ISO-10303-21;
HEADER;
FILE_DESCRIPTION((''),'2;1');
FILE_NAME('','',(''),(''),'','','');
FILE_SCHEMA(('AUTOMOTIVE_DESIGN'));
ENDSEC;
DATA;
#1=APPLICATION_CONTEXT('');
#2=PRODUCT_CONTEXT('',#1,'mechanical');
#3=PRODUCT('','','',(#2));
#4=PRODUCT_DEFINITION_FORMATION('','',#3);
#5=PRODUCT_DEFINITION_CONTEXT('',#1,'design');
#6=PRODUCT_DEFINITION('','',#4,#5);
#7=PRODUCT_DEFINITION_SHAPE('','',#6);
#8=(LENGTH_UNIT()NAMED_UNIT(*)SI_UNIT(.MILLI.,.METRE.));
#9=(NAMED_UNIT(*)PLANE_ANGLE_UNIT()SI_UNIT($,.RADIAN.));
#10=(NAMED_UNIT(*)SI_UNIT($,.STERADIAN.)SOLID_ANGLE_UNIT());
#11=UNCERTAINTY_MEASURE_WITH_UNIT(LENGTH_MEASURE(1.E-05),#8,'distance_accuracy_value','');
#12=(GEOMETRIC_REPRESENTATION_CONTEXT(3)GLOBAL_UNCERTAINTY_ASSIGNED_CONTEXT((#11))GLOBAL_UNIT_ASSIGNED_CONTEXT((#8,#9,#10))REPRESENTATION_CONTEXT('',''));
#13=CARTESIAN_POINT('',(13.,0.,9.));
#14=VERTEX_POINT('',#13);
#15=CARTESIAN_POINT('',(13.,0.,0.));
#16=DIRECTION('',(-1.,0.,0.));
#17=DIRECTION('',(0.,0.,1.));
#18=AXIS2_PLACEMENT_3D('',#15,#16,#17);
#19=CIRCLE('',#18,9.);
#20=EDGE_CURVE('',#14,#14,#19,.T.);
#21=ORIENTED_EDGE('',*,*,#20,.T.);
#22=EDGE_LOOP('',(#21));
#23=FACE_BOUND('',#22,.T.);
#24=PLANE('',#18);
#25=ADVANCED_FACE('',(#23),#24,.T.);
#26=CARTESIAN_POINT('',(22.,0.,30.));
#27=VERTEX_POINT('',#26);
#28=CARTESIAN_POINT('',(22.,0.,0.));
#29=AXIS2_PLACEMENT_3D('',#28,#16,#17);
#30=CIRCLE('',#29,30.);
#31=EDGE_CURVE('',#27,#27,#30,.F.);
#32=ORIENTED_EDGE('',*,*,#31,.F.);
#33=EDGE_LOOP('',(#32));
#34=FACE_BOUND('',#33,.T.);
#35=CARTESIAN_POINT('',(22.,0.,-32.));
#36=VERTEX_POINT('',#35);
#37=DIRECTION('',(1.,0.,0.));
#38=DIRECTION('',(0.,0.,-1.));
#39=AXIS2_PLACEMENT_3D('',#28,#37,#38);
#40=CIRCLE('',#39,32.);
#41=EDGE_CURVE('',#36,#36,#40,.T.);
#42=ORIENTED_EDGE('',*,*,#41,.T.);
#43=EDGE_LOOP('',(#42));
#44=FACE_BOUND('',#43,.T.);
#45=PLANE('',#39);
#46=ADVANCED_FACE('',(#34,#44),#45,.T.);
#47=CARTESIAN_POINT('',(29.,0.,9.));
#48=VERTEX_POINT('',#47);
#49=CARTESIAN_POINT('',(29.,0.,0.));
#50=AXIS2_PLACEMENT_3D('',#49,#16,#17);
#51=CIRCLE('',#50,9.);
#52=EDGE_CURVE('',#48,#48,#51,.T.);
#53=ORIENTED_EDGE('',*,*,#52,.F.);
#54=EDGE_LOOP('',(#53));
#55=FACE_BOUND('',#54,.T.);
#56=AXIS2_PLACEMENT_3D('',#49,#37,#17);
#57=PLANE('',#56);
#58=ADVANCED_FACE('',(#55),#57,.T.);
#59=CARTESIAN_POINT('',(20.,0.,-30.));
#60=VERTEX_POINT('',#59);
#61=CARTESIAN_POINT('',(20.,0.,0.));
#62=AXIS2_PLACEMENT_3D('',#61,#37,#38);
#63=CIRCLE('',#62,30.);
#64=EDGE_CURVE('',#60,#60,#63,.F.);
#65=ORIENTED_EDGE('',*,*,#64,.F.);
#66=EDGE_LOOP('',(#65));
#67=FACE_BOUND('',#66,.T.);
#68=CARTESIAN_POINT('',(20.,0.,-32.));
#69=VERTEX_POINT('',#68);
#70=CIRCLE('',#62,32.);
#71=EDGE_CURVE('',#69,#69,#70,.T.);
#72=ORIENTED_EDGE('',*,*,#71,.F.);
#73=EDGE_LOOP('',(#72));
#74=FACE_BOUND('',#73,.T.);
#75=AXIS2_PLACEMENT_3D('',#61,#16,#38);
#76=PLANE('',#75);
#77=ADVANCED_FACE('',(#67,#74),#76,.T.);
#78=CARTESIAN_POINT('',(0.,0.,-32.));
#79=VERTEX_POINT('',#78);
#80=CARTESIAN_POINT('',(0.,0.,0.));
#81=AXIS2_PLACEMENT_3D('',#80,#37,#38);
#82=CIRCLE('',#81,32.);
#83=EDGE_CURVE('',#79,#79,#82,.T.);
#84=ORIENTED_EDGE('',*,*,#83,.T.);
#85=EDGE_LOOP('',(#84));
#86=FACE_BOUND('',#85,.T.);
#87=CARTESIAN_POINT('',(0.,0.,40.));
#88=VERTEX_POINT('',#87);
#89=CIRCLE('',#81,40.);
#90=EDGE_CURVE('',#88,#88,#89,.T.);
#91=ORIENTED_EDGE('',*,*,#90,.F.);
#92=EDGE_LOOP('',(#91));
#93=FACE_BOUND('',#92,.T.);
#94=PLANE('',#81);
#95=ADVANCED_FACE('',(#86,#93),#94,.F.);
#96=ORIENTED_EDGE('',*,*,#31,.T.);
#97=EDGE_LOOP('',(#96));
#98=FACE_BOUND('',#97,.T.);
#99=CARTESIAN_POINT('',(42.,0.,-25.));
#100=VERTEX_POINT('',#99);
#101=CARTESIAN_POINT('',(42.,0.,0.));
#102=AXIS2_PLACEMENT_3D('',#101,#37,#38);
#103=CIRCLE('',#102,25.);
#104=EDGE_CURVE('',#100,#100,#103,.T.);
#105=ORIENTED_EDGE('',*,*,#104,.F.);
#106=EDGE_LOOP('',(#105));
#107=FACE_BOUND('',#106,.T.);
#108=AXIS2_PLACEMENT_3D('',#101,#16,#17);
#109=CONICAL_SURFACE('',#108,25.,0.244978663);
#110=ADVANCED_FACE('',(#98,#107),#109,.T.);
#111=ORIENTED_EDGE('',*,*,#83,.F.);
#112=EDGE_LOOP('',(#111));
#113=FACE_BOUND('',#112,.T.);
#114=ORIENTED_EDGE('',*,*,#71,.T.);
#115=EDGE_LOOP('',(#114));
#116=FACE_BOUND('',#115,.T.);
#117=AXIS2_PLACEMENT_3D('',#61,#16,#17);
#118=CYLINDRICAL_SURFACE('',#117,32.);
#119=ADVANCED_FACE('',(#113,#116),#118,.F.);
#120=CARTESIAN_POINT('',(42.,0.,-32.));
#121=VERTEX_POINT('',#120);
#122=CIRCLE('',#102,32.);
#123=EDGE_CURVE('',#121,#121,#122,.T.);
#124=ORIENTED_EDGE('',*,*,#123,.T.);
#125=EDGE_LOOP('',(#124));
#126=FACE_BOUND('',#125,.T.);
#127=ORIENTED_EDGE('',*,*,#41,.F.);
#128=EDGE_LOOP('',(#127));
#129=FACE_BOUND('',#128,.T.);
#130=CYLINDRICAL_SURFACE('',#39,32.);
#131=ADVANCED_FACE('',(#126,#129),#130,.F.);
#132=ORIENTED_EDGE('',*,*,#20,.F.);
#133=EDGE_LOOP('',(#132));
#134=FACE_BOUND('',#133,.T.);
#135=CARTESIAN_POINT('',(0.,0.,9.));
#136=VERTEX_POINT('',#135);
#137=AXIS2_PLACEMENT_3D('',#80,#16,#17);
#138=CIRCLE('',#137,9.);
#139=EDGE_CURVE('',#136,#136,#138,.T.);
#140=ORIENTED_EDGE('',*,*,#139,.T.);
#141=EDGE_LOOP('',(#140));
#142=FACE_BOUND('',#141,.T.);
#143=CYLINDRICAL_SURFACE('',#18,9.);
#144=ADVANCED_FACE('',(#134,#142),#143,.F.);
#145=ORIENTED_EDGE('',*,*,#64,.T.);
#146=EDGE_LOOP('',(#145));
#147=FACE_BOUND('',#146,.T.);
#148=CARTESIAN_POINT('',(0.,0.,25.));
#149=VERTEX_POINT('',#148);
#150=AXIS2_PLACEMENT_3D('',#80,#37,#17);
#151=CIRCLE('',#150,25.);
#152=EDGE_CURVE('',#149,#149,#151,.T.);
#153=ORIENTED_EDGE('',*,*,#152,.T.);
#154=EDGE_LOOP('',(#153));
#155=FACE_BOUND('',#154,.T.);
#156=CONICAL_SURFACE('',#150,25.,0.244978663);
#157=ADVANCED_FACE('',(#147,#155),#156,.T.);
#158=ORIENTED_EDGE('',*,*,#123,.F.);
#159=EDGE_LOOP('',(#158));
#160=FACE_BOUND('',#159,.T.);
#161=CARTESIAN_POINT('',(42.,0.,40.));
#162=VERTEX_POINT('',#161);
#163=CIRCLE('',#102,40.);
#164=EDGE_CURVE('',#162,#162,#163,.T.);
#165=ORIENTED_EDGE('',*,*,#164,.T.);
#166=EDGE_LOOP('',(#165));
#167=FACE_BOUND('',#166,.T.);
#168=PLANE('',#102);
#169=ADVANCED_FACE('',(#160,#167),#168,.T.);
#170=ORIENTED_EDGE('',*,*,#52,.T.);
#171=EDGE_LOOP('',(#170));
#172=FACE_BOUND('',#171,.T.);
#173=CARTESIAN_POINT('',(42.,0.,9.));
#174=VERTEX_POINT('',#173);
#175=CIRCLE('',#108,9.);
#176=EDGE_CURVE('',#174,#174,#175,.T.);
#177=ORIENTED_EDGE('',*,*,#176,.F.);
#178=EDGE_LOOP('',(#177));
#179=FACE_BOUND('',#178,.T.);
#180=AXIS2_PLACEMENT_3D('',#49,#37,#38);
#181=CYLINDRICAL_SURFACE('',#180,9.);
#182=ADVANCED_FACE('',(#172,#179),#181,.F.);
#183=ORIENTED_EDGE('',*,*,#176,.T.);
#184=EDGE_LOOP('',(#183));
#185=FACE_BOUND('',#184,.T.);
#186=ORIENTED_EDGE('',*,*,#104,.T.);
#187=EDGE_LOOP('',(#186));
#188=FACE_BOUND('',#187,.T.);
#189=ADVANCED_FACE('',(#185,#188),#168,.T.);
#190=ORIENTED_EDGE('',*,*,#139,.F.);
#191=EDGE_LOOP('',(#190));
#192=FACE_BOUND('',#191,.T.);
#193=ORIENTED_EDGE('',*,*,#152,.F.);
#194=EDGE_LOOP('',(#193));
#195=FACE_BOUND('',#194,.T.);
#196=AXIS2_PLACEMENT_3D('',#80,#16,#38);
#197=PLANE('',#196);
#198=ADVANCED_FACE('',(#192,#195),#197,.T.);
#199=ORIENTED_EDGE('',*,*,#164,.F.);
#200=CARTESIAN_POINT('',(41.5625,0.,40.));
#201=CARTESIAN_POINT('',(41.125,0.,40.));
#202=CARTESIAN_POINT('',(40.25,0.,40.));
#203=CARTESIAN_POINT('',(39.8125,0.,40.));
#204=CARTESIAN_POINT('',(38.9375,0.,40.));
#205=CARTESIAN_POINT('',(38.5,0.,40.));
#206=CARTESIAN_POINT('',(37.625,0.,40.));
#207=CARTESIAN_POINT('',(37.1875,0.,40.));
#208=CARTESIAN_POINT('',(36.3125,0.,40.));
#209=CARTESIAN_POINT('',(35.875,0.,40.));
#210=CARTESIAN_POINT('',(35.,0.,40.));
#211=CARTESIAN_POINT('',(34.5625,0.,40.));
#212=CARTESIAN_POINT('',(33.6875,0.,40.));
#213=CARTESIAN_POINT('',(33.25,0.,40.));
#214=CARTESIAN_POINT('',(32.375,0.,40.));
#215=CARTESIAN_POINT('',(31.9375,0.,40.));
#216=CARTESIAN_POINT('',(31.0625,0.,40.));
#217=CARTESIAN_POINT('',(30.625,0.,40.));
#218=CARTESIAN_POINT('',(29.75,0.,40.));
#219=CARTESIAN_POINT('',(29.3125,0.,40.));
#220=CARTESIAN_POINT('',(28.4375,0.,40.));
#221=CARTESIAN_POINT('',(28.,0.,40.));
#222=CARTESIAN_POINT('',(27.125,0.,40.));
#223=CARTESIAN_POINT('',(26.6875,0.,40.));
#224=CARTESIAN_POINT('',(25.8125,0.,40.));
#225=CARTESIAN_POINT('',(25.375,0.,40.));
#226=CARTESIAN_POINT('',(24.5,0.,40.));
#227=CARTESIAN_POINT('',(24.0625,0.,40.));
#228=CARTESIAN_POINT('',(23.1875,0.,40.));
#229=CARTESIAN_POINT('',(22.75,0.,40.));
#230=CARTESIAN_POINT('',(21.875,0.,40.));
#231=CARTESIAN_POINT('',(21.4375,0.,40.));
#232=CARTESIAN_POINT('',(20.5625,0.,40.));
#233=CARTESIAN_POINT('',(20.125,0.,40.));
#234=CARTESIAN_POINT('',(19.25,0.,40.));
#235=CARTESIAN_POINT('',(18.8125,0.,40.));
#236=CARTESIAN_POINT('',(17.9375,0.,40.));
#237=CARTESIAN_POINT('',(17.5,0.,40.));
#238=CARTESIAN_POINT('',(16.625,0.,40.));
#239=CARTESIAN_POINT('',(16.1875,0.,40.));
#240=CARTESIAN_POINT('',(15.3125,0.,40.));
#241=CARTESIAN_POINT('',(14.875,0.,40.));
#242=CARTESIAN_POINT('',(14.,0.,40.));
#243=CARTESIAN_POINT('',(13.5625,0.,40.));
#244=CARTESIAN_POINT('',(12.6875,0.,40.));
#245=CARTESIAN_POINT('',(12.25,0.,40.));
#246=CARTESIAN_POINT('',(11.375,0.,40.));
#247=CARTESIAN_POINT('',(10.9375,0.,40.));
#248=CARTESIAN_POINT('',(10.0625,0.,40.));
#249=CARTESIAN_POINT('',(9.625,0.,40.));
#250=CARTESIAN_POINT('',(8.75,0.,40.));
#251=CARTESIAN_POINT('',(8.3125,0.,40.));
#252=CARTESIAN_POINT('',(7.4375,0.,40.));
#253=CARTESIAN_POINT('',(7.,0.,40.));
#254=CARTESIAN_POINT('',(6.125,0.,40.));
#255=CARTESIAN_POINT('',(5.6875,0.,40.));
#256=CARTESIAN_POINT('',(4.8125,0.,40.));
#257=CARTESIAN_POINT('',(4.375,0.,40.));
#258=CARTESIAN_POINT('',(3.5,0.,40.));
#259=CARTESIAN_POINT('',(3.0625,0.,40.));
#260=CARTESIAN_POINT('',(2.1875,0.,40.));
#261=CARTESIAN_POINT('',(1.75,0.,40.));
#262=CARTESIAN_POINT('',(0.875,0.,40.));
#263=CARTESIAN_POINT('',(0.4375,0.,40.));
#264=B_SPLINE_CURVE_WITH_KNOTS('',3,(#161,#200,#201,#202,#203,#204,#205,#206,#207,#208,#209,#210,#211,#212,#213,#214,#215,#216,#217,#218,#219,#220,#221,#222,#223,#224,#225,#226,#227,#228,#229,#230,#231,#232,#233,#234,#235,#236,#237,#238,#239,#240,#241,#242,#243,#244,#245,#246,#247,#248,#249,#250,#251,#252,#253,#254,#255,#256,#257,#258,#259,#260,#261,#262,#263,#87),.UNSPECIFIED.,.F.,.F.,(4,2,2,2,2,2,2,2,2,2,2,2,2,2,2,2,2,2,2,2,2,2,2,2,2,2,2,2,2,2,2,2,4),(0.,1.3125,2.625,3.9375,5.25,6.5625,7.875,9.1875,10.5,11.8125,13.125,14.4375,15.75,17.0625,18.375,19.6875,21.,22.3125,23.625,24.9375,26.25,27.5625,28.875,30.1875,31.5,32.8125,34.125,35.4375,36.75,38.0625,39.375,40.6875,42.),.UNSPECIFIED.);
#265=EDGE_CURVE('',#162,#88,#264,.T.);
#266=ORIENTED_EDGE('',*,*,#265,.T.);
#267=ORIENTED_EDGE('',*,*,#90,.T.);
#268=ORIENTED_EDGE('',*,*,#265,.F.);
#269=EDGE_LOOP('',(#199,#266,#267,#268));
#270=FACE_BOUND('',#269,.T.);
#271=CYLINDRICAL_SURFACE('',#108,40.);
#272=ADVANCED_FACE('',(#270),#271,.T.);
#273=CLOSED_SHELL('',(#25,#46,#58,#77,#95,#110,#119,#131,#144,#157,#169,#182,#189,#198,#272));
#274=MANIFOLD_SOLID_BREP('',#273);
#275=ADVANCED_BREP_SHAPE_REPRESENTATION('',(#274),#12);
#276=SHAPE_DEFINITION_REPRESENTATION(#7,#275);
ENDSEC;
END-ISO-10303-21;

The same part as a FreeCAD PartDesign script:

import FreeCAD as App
import Part
import Sketcher
Q = App.Units.Quantity

doc = App.newDocument("Part")
body = doc.addObject("PartDesign::Body", "Body")

# Sketch on YZ plane
sketch1 = body.newObject("Sketcher::SketchObject", "Sketch")
sketch1.AttachmentSupport = (doc.getObject("YZ_Plane"), [""])
sketch1.MapMode = "FlatFace"
sketch1.addGeometry(Part.Circle(App.Vector(0, 0, 0), App.Vector(0, 0, 1), 40), False)
sketch1.addConstraint(Sketcher.Constraint("Coincident", 0, 3, -1, 1))
sketch1.addConstraint(Sketcher.Constraint("Diameter", 0, Q("80 mm")))
pad1 = body.newObject("PartDesign::Pad", "Pad")
pad1.Profile = sketch1
pad1.Length = 42

# Sketch on YZ plane
sketch2 = body.newObject("Sketcher::SketchObject", "Sketch001")
sketch2.AttachmentSupport = (doc.getObject("YZ_Plane"), [""])
sketch2.MapMode = "FlatFace"
sketch2.AttachmentOffset = App.Placement(App.Vector(0, 0, 42), App.Rotation())
sketch2.addGeometry(Part.Circle(App.Vector(0, 0, 0), App.Vector(0, 0, 1), 32), False)
sketch2.addConstraint(Sketcher.Constraint("Coincident", 0, 3, -1, 1))
sketch2.addConstraint(Sketcher.Constraint("Diameter", 0, Q("64 mm")))
pocket1 = body.newObject("PartDesign::Pocket", "Pocket")
pocket1.Profile = sketch2
pocket1.Length = 20

# Sketch on YZ plane
sketch3 = body.newObject("Sketcher::SketchObject", "Sketch002")
sketch3.AttachmentSupport = (doc.getObject("YZ_Plane"), [""])
sketch3.MapMode = "FlatFace"
sketch3.AttachmentOffset = App.Placement(App.Vector(0, 0, 22), App.Rotation())
sketch3.addGeometry(Part.Circle(App.Vector(0, 0, 0), App.Vector(0, 0, 1), 30), False)
sketch3.addConstraint(Sketcher.Constraint("Coincident", 0, 3, -1, 1))
sketch3.addConstraint(Sketcher.Constraint("Diameter", 0, Q("60 mm")))

# Sketch on YZ plane
sketch4 = body.newObject("Sketcher::SketchObject", "Sketch003")
sketch4.AttachmentSupport = (doc.getObject("YZ_Plane"), [""])
sketch4.MapMode = "FlatFace"
sketch4.AttachmentOffset = App.Placement(App.Vector(0, 0, 42), App.Rotation())
sketch4.addGeometry(Part.Circle(App.Vector(0, 0, 0), App.Vector(0, 0, 1), 25), False)
sketch4.addConstraint(Sketcher.Constraint("Coincident", 0, 3, -1, 1))
sketch4.addConstraint(Sketcher.Constraint("Diameter", 0, Q("50 mm")))

additiveloft = body.newObject("PartDesign::AdditiveLoft", "AdditiveLoft")
additiveloft.Profile = sketch3
additiveloft.Sections = [sketch4]
doc.recompute()

datumplane = body.newObject("PartDesign::Plane", "DatumPlane")
datumplane.AttachmentSupport = (doc.getObject("YZ_Plane"), [""])
datumplane.MapMode = "FlatFace"
datumplane.AttachmentOffset = App.Placement(App.Vector(0, 0, 21), App.Rotation())
mirrored = body.newObject("PartDesign::Mirrored", "Mirrored")
mirrored.Originals = [pocket1, additiveloft]
mirrored.MirrorPlane = (datumplane, [""])
body.Tip = mirrored

# Sketch on YZ plane
sketch5 = body.newObject("Sketcher::SketchObject", "Sketch004")
sketch5.AttachmentSupport = (doc.getObject("YZ_Plane"), [""])
sketch5.MapMode = "FlatFace"
sketch5.addGeometry(Part.Circle(App.Vector(0, 0, 0), App.Vector(0, 0, 1), 9), False)
sketch5.addConstraint(Sketcher.Constraint("Coincident", 0, 3, -1, 1))
sketch5.addConstraint(Sketcher.Constraint("Diameter", 0, Q("18 mm")))
pocket2 = body.newObject("PartDesign::Pocket", "Pocket001")
pocket2.Profile = sketch5
pocket2.Length = 13
pocket2.Reversed = True
doc.recompute()

datumplane2 = body.newObject("PartDesign::Plane", "DatumPlane001")
datumplane2.AttachmentSupport = (doc.getObject("YZ_Plane"), [""])
datumplane2.MapMode = "FlatFace"
datumplane2.AttachmentOffset = App.Placement(App.Vector(0, 0, 21), App.Rotation())
mirrored2 = body.newObject("PartDesign::Mirrored", "Mirrored001")
mirrored2.Originals = [pocket2]
mirrored2.MirrorPlane = (datumplane2, [""])
body.Tip = mirrored2

doc.recompute()
